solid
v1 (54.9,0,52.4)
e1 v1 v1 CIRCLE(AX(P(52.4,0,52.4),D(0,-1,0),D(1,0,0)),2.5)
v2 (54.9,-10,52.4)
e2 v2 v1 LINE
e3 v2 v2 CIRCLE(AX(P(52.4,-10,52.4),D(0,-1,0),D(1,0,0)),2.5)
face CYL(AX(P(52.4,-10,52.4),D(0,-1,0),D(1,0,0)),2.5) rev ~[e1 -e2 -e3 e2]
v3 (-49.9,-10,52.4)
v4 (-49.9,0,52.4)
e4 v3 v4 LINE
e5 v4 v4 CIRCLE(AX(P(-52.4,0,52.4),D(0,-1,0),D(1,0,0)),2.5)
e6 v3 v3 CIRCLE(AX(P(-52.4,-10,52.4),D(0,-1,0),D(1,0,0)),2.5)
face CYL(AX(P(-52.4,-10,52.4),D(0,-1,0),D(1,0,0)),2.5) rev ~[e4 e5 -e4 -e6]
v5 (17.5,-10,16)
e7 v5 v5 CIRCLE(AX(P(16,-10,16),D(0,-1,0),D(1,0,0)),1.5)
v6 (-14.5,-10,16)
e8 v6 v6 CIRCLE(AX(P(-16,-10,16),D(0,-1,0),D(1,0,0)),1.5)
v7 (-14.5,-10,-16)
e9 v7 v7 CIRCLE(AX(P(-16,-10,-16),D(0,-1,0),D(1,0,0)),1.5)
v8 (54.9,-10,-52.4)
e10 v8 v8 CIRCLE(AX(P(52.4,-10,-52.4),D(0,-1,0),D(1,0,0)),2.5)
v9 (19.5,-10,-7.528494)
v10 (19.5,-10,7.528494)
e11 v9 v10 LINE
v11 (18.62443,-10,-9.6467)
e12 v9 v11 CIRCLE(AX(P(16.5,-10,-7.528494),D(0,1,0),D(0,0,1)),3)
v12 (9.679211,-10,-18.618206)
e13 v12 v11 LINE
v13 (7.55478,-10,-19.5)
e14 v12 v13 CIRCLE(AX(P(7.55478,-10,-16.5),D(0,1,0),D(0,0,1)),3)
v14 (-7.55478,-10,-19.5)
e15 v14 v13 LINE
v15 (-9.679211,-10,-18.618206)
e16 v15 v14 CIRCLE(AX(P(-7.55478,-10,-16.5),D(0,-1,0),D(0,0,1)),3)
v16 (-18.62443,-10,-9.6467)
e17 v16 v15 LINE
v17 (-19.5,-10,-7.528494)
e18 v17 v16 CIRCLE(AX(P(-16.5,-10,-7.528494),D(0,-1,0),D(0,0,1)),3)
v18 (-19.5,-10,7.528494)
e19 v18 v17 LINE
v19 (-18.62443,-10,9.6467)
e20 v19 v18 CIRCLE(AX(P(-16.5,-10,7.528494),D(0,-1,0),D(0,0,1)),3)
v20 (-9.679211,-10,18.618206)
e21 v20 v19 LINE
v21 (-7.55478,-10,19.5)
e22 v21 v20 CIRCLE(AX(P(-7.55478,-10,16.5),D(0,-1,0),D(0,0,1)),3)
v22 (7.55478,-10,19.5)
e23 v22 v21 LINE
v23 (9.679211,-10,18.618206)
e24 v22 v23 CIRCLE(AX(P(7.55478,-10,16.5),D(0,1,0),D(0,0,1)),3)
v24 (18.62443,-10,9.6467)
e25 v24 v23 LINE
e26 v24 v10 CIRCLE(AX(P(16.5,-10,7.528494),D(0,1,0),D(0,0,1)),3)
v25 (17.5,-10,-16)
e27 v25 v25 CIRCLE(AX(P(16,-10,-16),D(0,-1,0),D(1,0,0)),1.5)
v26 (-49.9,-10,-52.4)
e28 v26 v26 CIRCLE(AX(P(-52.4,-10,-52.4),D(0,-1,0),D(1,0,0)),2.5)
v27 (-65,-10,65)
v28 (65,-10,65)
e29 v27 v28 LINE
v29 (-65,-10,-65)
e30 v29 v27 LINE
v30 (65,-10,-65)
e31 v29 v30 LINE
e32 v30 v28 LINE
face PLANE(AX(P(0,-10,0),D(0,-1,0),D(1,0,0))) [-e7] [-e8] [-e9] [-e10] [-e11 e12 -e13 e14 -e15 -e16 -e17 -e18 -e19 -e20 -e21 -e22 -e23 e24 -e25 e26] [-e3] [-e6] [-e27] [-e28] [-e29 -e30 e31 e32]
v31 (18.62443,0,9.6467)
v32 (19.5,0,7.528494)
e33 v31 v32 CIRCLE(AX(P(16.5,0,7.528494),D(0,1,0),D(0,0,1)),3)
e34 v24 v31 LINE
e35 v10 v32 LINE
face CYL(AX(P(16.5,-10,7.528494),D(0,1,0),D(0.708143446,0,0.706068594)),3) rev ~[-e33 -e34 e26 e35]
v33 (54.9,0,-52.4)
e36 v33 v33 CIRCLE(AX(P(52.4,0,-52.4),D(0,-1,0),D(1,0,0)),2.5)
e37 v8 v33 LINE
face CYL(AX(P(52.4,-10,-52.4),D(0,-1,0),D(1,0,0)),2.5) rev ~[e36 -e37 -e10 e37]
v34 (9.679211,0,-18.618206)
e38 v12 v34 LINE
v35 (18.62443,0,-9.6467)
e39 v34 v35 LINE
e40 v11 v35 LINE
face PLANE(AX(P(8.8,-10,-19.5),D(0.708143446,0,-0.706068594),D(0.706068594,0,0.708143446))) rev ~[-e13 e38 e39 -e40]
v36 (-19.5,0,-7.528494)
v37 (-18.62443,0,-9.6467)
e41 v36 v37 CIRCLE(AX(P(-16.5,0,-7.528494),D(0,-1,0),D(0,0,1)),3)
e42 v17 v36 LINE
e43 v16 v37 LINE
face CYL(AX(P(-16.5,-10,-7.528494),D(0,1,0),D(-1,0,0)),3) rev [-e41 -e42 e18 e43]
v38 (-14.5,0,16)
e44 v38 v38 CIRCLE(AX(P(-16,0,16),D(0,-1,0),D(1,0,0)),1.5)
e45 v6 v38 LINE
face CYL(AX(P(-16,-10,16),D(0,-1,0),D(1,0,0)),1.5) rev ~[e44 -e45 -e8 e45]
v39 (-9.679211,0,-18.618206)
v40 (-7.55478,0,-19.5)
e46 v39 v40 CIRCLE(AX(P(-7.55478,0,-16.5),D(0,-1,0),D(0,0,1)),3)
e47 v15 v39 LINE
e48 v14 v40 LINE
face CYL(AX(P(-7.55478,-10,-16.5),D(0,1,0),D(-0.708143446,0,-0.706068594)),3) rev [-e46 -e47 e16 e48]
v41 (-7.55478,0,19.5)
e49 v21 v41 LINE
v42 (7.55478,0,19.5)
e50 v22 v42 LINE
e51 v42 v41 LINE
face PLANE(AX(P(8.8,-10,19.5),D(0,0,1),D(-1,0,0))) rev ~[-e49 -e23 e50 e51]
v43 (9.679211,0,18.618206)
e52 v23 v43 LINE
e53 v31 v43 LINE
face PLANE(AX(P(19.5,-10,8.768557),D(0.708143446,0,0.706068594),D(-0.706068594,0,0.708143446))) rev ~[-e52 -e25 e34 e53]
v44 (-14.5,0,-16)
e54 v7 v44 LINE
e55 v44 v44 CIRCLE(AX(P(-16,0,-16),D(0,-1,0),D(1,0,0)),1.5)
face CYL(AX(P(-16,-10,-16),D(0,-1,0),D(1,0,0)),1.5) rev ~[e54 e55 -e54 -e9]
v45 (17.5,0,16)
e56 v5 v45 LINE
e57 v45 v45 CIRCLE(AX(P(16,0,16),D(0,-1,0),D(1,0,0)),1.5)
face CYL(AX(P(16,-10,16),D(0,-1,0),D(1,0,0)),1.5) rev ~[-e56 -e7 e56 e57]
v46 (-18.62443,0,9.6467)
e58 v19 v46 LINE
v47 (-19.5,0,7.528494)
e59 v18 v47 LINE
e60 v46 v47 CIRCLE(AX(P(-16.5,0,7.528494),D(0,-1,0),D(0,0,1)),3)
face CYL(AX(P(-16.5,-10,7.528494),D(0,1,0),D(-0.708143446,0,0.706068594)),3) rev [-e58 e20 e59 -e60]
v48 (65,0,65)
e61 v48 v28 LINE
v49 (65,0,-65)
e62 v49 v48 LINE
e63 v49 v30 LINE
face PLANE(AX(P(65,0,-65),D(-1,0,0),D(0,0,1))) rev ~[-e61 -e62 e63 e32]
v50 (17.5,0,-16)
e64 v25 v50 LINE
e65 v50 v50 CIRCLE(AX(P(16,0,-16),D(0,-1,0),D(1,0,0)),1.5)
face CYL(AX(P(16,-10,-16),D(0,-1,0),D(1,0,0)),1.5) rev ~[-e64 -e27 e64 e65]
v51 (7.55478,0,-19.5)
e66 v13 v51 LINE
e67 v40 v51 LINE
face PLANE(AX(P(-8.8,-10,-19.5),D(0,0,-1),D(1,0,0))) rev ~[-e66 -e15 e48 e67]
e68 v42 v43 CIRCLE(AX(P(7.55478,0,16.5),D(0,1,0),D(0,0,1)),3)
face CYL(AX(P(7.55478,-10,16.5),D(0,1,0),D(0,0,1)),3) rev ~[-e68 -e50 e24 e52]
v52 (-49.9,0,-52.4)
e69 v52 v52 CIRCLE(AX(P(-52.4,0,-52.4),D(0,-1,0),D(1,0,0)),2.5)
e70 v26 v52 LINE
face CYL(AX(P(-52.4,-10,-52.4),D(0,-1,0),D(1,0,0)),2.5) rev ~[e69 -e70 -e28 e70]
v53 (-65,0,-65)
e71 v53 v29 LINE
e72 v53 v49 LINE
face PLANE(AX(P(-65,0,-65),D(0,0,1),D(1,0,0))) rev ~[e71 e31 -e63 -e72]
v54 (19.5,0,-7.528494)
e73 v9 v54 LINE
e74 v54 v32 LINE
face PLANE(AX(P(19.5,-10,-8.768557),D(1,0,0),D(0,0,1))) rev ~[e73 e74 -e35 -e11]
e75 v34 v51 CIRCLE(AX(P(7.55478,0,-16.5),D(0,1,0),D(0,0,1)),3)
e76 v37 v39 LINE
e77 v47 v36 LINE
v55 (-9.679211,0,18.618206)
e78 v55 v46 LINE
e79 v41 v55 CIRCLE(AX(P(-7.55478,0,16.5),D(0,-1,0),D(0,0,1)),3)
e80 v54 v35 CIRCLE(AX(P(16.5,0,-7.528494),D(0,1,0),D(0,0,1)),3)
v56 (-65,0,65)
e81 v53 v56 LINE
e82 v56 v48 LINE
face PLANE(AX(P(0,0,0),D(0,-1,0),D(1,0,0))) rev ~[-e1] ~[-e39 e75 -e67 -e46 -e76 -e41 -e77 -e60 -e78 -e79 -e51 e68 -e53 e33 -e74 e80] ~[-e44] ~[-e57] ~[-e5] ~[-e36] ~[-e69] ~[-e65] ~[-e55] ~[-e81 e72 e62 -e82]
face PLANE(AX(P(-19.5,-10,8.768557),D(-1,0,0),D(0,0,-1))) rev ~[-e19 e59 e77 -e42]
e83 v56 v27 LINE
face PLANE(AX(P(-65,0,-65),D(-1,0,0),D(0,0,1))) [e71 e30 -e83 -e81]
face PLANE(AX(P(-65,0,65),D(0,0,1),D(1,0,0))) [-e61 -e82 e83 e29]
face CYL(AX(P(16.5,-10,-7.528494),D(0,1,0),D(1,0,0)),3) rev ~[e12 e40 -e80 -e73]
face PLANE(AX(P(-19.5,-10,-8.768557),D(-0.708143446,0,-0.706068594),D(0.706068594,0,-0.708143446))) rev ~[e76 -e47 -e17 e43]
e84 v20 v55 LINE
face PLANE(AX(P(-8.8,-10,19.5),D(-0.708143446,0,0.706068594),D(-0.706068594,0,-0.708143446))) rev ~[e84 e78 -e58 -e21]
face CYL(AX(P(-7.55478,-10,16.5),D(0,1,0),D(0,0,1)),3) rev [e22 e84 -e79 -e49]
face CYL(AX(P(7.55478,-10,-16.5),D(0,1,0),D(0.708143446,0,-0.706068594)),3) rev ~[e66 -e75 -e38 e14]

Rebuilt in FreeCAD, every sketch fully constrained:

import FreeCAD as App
import Part
import Sketcher
Q = App.Units.Quantity


def edges_at(feature, points):
    """Names of the edges that pass closest to the given points."""
    edges = feature.Shape.Edges
    near = lambda p: min(range(len(edges)), key=lambda i: edges[i].distToShape(Part.Vertex(*p))[0])
    return sorted({f"Edge{near(p) + 1}" for p in points})

doc = App.newDocument("Part")
params = doc.addObject("Spreadsheet::Sheet", "Params")
for row, (alias, value) in enumerate([
    ("sketch1_width", "130 mm"),
    ("pad1_length", "10 mm"),
    ("sketch2_width", "17.6 mm"),
    ("sketch3_diameter", "3 mm"),
    ("sketch4_diameter", "5 mm"),
    ("fillet_radius", "3 mm"),
], start=1):
    params.set(f"A{row}", alias)
    params.set(f"B{row}", "=" + value)
    params.setAlias(f"B{row}", alias)

body = doc.addObject("PartDesign::Body", "Body")

# Sketch on XZ plane
sketch1 = body.newObject("Sketcher::SketchObject", "Sketch")
sketch1.AttachmentSupport = (doc.getObject("XZ_Plane"), [""])
sketch1.MapMode = "FlatFace"
sketch1.addGeometry([
    Part.LineSegment(App.Vector(-65, 65, 0), App.Vector(-65, -65, 0)),
    Part.LineSegment(App.Vector(-65, -65, 0), App.Vector(65, -65, 0)),
    Part.LineSegment(App.Vector(65, -65, 0), App.Vector(65, 65, 0)),
    Part.LineSegment(App.Vector(65, 65, 0), App.Vector(-65, 65, 0)),
], False)
sketch1.addConstraint([
    Sketcher.Constraint("Coincident", 0, 2, 1, 1),
    Sketcher.Constraint("Coincident", 1, 2, 2, 1),
    Sketcher.Constraint("Coincident", 2, 2, 3, 1),
    Sketcher.Constraint("Coincident", 3, 2, 0, 1),
    Sketcher.Constraint("Vertical", 0),
    Sketcher.Constraint("Horizontal", 1),
    Sketcher.Constraint("Vertical", 2),
    Sketcher.Constraint("Horizontal", 3),
    Sketcher.Constraint("Symmetric", 0, 2, 2, 2, -1, 1),
    Sketcher.Constraint("Equal", 3, 0),
    Sketcher.Constraint("DistanceX", 1, 1, 1, 2, Q("130 mm")),
])
sketch1.setExpression("Constraints[10]", "Params.sketch1_width")
pad1 = body.newObject("PartDesign::Pad", "Pad")
pad1.Profile = sketch1
pad1.setExpression("Length", "Params.pad1_length")

# Sketch on XZ plane
sketch2 = body.newObject("Sketcher::SketchObject", "Sketch001")
sketch2.AttachmentSupport = (doc.getObject("XZ_Plane"), [""])
sketch2.MapMode = "FlatFace"
sketch2.AttachmentOffset = App.Placement(App.Vector(0, 0, 10), App.Rotation())
sketch2.addGeometry([
    Part.LineSegment(App.Vector(9, 20, 0), App.Vector(-9, 20, 0)),  # 0
    Part.LineSegment(App.Vector(-9, 20, 0), App.Vector(-20, 9, 0)),  # 1
    Part.LineSegment(App.Vector(-20, 9, 0), App.Vector(-20, -9, 0)),  # 2
    Part.LineSegment(App.Vector(-20, -9, 0), App.Vector(-9, -20, 0)),  # 3
    Part.LineSegment(App.Vector(-9, -20, 0), App.Vector(9, -20, 0)),  # 4
    Part.LineSegment(App.Vector(9, -20, 0), App.Vector(20, -9, 0)),  # 5
    Part.LineSegment(App.Vector(20, -9, 0), App.Vector(20, 9, 0)),  # 6
    Part.LineSegment(App.Vector(20, 9, 0), App.Vector(9, 20, 0)),  # 7
], False)
sketch2.addConstraint([
    Sketcher.Constraint("Coincident", 0, 2, 1, 1),
    Sketcher.Constraint("Coincident", 1, 2, 2, 1),
    Sketcher.Constraint("Coincident", 2, 2, 3, 1),
    Sketcher.Constraint("Coincident", 3, 2, 4, 1),
    Sketcher.Constraint("Coincident", 4, 2, 5, 1),
    Sketcher.Constraint("Coincident", 5, 2, 6, 1),
    Sketcher.Constraint("Coincident", 6, 2, 7, 1),
    Sketcher.Constraint("Coincident", 7, 2, 0, 1),
    Sketcher.Constraint("Horizontal", 0),
    Sketcher.Constraint("Vertical", 2),
    Sketcher.Constraint("Horizontal", 4),
    Sketcher.Constraint("Vertical", 6),
    Sketcher.Constraint("Symmetric", 0, 2, 4, 2, -1, 1),
    Sketcher.Constraint("Symmetric", 1, 2, 5, 2, -1, 1),
    Sketcher.Constraint("Parallel", 3, 7),
    Sketcher.Constraint("Horizontal", 2, 2, 5, 2),
    Sketcher.Constraint("Horizontal", 1, 2, 6, 2),
    Sketcher.Constraint("Vertical", 0, 2, 3, 2),
    Sketcher.Constraint("DistanceX", 0, 2, 0, 1, Q("17.6 mm")),
    Sketcher.Constraint("DistanceY", 3, 2, 0, 2, Q("39 mm")),
    Sketcher.Constraint("DistanceX", 2, 2, 5, 2, Q("39 mm")),
    Sketcher.Constraint("DistanceY", 2, 2, 2, 1, Q("17.537114 mm")),
])
sketch2.setExpression("Constraints[18]", "Params.sketch2_width")
pocket1 = body.newObject("PartDesign::Pocket", "Pocket")
pocket1.Profile = sketch2
pocket1.Type = "ThroughAll"

# Sketch on XZ plane
sketch3 = body.newObject("Sketcher::SketchObject", "Sketch002")
sketch3.AttachmentSupport = (doc.getObject("XZ_Plane"), [""])
sketch3.MapMode = "FlatFace"
sketch3.AttachmentOffset = App.Placement(App.Vector(0, 0, 10), App.Rotation())
sketch3.addGeometry([
    Part.Circle(App.Vector(16, 16, 0), App.Vector(0, 0, 1), 1.5),
    Part.Circle(App.Vector(16, -16, 0), App.Vector(0, 0, 1), 1.5),
    Part.Circle(App.Vector(-16, 16, 0), App.Vector(0, 0, 1), 1.5),
    Part.Circle(App.Vector(-16, -16, 0), App.Vector(0, 0, 1), 1.5),
], False)
sketch3.addConstraint([
    Sketcher.Constraint("Equal", 0, 1),
    Sketcher.Constraint("Equal", 1, 2),
    Sketcher.Constraint("Equal", 2, 3),
    Sketcher.Constraint("Symmetric", 1, 3, 2, 3, -1, 1),
    Sketcher.Constraint("Symmetric", 0, 3, 3, 3, -1, 1),
    Sketcher.Constraint("Symmetric", 0, 3, 2, 3, -2),
    Sketcher.Constraint("Diameter", 0, Q("3 mm")),
    Sketcher.Constraint("DistanceX", -1, 1, 0, 3, Q("16 mm")),
    Sketcher.Constraint("DistanceY", -1, 1, 0, 3, Q("16 mm")),
])
sketch3.setExpression("Constraints[6]", "Params.sketch3_diameter")
pocket2 = body.newObject("PartDesign::Pocket", "Pocket001")
pocket2.Profile = sketch3
pocket2.Type = "ThroughAll"

# Sketch on XZ plane
sketch4 = body.newObject("Sketcher::SketchObject", "Sketch003")
sketch4.AttachmentSupport = (doc.getObject("XZ_Plane"), [""])
sketch4.MapMode = "FlatFace"
sketch4.AttachmentOffset = App.Placement(App.Vector(0, 0, 10), App.Rotation())
sketch4.addGeometry([
    Part.Circle(App.Vector(52.4, 52.4, 0), App.Vector(0, 0, 1), 2.5),
    Part.Circle(App.Vector(52.4, -52.4, 0), App.Vector(0, 0, 1), 2.5),
    Part.Circle(App.Vector(-52.4, 52.4, 0), App.Vector(0, 0, 1), 2.5),
    Part.Circle(App.Vector(-52.4, -52.4, 0), App.Vector(0, 0, 1), 2.5),
], False)
sketch4.addConstraint([
    Sketcher.Constraint("Equal", 0, 1),
    Sketcher.Constraint("Equal", 1, 2),
    Sketcher.Constraint("Equal", 2, 3),
    Sketcher.Constraint("Symmetric", 1, 3, 2, 3, -1, 1),
    Sketcher.Constraint("Symmetric", 0, 3, 3, 3, -1, 1),
    Sketcher.Constraint("Symmetric", 0, 3, 2, 3, -2),
    Sketcher.Constraint("Diameter", 0, Q("5 mm")),
    Sketcher.Constraint("DistanceX", -1, 1, 0, 3, Q("52.4 mm")),
    Sketcher.Constraint("DistanceY", -1, 1, 0, 3, Q("52.4 mm")),
])
sketch4.setExpression("Constraints[6]", "Params.sketch4_diameter")
pocket3 = body.newObject("PartDesign::Pocket", "Pocket002")
pocket3.Profile = sketch4
pocket3.Type = "ThroughAll"
doc.recompute()

fillet = body.newObject("PartDesign::Fillet", "Fillet")
fillet.Base = (pocket3, edges_at(pocket3, [
    (-19.5, -5, 8.769),
    (-8.8, -5, 19.5),
    (-19.5, -5, -8.769),
    (-8.8, -5, -19.5),
    (8.8, -5, -19.5),
    (19.5, -5, -8.769),
    (19.5, -5, 8.769),
    (8.8, -5, 19.5),
]))
fillet.setExpression("Radius", "Params.fillet_radius")

doc.recompute()
